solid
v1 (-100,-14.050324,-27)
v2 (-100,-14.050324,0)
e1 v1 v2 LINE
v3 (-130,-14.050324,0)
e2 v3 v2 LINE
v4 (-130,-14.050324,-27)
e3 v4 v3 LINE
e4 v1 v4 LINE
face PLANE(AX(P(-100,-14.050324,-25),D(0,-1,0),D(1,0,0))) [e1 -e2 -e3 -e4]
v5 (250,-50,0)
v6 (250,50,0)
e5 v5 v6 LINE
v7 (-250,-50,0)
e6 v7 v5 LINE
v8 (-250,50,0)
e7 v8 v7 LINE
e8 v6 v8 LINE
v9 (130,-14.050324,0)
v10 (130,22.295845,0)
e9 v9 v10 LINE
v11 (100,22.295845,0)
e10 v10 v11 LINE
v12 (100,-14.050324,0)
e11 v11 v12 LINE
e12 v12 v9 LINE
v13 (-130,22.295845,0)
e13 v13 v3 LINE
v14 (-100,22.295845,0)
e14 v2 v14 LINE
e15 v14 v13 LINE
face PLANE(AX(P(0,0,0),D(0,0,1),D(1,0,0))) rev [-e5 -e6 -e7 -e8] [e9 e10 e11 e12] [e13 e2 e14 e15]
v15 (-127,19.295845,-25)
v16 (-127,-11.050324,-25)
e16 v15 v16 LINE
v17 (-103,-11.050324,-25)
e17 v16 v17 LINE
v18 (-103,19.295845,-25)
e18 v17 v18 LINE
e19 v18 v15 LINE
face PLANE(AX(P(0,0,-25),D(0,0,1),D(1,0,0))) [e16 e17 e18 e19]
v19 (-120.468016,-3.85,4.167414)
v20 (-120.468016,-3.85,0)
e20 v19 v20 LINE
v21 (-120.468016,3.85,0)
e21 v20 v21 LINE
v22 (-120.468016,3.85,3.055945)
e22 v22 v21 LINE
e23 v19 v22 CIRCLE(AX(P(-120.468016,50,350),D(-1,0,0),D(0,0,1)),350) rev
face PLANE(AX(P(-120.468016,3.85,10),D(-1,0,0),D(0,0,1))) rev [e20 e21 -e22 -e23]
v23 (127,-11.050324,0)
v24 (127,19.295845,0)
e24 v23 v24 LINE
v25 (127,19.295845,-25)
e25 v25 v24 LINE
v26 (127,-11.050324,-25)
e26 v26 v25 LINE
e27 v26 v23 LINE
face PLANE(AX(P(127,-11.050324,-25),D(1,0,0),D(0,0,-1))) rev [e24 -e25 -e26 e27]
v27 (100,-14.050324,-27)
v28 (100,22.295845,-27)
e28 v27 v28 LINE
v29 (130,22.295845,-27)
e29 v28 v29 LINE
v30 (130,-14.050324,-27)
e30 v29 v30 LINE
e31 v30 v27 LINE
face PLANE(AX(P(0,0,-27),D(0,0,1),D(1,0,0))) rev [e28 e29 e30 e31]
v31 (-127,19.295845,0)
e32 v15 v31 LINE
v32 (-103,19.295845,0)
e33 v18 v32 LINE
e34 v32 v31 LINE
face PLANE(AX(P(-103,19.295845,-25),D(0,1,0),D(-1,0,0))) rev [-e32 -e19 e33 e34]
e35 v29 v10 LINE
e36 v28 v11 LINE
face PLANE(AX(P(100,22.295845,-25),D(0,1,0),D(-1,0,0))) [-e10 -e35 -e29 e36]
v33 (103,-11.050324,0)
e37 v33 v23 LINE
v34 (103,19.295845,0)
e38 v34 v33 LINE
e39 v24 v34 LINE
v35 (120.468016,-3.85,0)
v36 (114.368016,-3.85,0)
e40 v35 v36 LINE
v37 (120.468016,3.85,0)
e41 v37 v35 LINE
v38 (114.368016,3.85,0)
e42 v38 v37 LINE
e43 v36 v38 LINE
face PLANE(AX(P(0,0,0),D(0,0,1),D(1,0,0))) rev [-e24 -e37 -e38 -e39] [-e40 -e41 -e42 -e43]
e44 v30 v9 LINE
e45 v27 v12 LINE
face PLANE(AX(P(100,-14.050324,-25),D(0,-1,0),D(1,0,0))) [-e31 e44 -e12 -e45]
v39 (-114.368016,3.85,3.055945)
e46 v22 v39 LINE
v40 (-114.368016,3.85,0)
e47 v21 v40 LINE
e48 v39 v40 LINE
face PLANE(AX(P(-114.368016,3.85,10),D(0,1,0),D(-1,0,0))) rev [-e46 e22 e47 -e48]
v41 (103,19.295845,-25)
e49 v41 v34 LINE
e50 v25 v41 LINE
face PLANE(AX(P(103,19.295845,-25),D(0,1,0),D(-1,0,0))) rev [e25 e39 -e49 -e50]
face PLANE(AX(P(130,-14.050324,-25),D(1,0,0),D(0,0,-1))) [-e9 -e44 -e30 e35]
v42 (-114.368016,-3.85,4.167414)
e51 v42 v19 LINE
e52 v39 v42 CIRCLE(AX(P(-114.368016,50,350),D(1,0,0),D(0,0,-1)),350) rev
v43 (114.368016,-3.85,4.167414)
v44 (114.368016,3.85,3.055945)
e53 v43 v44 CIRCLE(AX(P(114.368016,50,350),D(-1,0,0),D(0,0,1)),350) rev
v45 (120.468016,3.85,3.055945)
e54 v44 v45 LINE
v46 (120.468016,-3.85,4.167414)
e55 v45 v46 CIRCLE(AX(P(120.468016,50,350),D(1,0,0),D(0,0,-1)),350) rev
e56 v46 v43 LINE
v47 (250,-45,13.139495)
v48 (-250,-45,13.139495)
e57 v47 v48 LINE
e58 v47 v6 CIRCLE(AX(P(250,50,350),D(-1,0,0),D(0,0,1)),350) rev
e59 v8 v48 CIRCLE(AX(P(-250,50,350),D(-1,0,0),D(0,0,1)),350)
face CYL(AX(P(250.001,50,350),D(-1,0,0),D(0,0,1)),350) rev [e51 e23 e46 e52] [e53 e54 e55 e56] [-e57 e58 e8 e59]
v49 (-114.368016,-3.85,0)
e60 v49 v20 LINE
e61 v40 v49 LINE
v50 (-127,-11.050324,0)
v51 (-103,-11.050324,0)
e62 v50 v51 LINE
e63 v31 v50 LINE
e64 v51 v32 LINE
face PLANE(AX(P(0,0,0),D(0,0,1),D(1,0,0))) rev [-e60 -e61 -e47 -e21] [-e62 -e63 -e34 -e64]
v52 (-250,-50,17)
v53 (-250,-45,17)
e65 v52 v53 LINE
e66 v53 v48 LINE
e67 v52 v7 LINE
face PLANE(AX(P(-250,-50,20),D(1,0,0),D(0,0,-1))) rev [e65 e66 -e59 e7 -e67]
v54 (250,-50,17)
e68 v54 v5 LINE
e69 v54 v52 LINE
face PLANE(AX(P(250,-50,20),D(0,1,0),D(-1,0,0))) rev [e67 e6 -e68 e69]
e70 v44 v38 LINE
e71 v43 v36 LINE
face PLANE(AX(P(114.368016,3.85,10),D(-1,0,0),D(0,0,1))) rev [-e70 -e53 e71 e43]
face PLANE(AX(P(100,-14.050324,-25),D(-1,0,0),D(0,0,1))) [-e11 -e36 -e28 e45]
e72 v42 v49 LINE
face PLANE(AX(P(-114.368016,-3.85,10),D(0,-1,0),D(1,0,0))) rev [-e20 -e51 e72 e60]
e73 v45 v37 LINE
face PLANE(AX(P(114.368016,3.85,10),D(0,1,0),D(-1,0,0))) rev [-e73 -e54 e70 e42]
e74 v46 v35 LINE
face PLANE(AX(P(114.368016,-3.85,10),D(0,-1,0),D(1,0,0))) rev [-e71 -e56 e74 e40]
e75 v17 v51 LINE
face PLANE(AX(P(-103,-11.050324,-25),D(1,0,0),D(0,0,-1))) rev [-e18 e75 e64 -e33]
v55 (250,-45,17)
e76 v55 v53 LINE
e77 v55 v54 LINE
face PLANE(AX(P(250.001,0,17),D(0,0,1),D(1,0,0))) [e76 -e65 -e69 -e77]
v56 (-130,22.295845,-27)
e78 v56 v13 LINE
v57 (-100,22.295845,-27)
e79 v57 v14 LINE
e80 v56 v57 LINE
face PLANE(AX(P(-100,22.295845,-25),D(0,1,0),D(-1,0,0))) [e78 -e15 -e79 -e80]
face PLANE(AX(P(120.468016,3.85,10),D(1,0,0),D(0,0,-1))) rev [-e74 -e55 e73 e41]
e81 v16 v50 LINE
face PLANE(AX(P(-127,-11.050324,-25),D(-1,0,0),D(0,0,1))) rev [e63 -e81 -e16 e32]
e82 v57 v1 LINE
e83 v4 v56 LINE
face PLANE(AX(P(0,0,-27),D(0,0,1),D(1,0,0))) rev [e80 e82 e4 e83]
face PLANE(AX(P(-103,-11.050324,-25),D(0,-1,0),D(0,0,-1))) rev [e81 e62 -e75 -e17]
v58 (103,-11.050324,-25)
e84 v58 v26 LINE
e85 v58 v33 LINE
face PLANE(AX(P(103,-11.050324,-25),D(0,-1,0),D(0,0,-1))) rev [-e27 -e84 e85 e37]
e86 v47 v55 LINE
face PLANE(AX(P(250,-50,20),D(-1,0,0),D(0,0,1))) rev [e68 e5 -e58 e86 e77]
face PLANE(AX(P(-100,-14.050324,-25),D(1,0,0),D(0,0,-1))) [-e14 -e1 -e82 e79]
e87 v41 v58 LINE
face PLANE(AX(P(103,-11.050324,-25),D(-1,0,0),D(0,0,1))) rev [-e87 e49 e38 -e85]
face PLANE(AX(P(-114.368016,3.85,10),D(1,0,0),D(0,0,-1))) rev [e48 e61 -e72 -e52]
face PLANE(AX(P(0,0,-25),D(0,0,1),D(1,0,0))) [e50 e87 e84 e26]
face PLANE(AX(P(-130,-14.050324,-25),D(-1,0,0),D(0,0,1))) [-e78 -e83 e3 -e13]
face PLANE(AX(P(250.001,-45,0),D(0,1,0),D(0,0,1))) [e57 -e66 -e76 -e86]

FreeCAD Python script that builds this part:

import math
import FreeCAD as App
import Part
import Sketcher
Q = App.Units.Quantity


def add_polygon(sketch, points):
    """Adds a closed chain of lines whose ends are joined by coincident constraints."""
    first, n = sketch.GeometryCount, len(points)
    for a, b in zip(points, points[1:] + points[:1]):
        sketch.addGeometry(Part.LineSegment(App.Vector(*a, 0), App.Vector(*b, 0)), False)
    for i in range(n):
        sketch.addConstraint(Sketcher.Constraint("Coincident", first + i, 2, first + (i + 1) % n, 1))

doc = App.newDocument("Part")
params = doc.addObject("Spreadsheet::Sheet", "Params")
for row, (alias, value) in enumerate([
    ("sketch1_width", "500 mm"),
    ("sketch1_height", "100 mm"),
    ("pad1_length", "20 mm"),
    ("sketch2_radius", "350 mm"),
    ("sketch2_width", "5 mm"),
    ("sketch2_width2", "100 mm"),
    ("sketch2_height", "3 mm"),
    ("sketch2_height2", "20 mm"),
    ("sketch3_width", "6.1 mm"),
    ("sketch3_height", "7.7 mm"),
    ("pocket2_length", "10 mm"),
    ("sketch4_width", "30 mm"),
    ("sketch4_width2", "24 mm"),
    ("pad2_length", "25 mm"),
    ("sketch5_width", "30 mm"),
    ("pad3_length", "2 mm"),
    ("sketch6_width", "30 mm"),
    ("pad4_length", "2 mm"),
], start=1):
    params.set(f"A{row}", alias)
    params.set(f"B{row}", "=" + value)
    params.setAlias(f"B{row}", alias)

body = doc.addObject("PartDesign::Body", "Body")

# Sketch on XY plane
sketch1 = body.newObject("Sketcher::SketchObject", "Sketch")
sketch1.AttachmentSupport = (doc.getObject("XY_Plane"), [""])
sketch1.MapMode = "FlatFace"
add_polygon(sketch1, [(-250, 50), (-250, -50), (250, -50), (250, 50)])  # lines 0-3
sketch1.addConstraint([
    Sketcher.Constraint("Vertical", 0),
    Sketcher.Constraint("Horizontal", 1),
    Sketcher.Constraint("Vertical", 2),
    Sketcher.Constraint("Horizontal", 3),
    Sketcher.Constraint("Symmetric", 0, 2, 2, 2, -1, 1),
    Sketcher.Constraint("DistanceX", 1, 1, 1, 2, Q("500 mm")),
    Sketcher.Constraint("DistanceY", 0, 2, 0, 1, Q("100 mm")),
])
sketch1.setExpression("Constraints[9]", "Params.sketch1_width")
sketch1.setExpression("Constraints[10]", "Params.sketch1_height")
pad1 = body.newObject("PartDesign::Pad", "Pad")
pad1.Profile = sketch1
pad1.setExpression("Length", "Params.pad1_length")

# Sketch on YZ plane
sketch2 = body.newObject("Sketcher::SketchObject", "Sketch001")
sketch2.AttachmentSupport = (doc.getObject("YZ_Plane"), [""])
sketch2.MapMode = "FlatFace"
sketch2.AttachmentOffset = App.Placement(App.Vector(0, 0, -250), App.Rotation())
sketch2.addGeometry([
    Part.LineSegment(App.Vector(-45, 17, 0), App.Vector(-50, 17, 0)),  # 0
    Part.LineSegment(App.Vector(-50, 17, 0), App.Vector(-50, 20, 0)),  # 1
    Part.LineSegment(App.Vector(-50, 20, 0), App.Vector(50, 20, 0)),  # 2
    Part.LineSegment(App.Vector(50, 20, 0), App.Vector(50, 0, 0)),  # 3
    Part.ArcOfCircle(Part.Circle(App.Vector(50, 350, 0), App.Vector(0, 0, 1), 350), math.radians(-105.749293), math.radians(-90)),  # 4
    Part.LineSegment(App.Vector(-45, 13.139495, 0), App.Vector(-45, 17, 0)),  # 5
], False)
sketch2.addConstraint([
    Sketcher.Constraint("Coincident", 0, 2, 1, 1),
    Sketcher.Constraint("Coincident", 1, 2, 2, 1),
    Sketcher.Constraint("Coincident", 2, 2, 3, 1),
    Sketcher.Constraint("Coincident", 3, 2, 4, 2),
    Sketcher.Constraint("Coincident", 4, 1, 5, 1),
    Sketcher.Constraint("Coincident", 5, 2, 0, 1),
    Sketcher.Constraint("Horizontal", 0),
    Sketcher.Constraint("Vertical", 1),
    Sketcher.Constraint("Horizontal", 2),
    Sketcher.Constraint("Vertical", 3),
    Sketcher.Constraint("Vertical", 5),
    Sketcher.Constraint("PointOnObject", 3, 2, -1),
    Sketcher.Constraint("Vertical", 4, 3, 2, 2),
    Sketcher.Constraint("Radius", 4, Q("350 mm")),
    Sketcher.Constraint("DistanceX", 0, 2, 0, 1, Q("5 mm")),
    Sketcher.Constraint("DistanceX", 2, 1, 2, 2, Q("100 mm")),
    Sketcher.Constraint("DistanceY", 1, 1, 1, 2, Q("3 mm")),
    Sketcher.Constraint("DistanceY", 3, 2, 3, 1, Q("20 mm")),
    Sketcher.Constraint("DistanceX", -1, 1, 4, 3, Q("50 mm")),
])
sketch2.setExpression("Constraints[13]", "Params.sketch2_radius")
sketch2.setExpression("Constraints[14]", "Params.sketch2_width")
sketch2.setExpression("Constraints[15]", "Params.sketch2_width2")
sketch2.setExpression("Constraints[16]", "Params.sketch2_height")
sketch2.setExpression("Constraints[17]", "Params.sketch2_height2")
pocket1 = body.newObject("PartDesign::Pocket", "Pocket")
pocket1.Profile = sketch2
pocket1.Type = "UpToFirst"
pocket1.Reversed = True

# Sketch on XY plane
sketch3 = body.newObject("Sketcher::SketchObject", "Sketch002")
sketch3.AttachmentSupport = (doc.getObject("XY_Plane"), [""])
sketch3.MapMode = "FlatFace"
add_polygon(sketch3, [(120.468016, 3.85), (120.468016, -3.85), (114.368016, -3.85), (114.368016, 3.85)])  # lines 0-3
add_polygon(sketch3, [(-114.368016, 3.85), (-114.368016, -3.85), (-120.468016, -3.85), (-120.468016, 3.85)])  # lines 4-7
sketch3.addConstraint([
    Sketcher.Constraint("Vertical", 0),
    Sketcher.Constraint("Horizontal", 1),
    Sketcher.Constraint("Vertical", 2),
    Sketcher.Constraint("Horizontal", 3),
    Sketcher.Constraint("Vertical", 4),
    Sketcher.Constraint("Horizontal", 5),
    Sketcher.Constraint("Vertical", 6),
    Sketcher.Constraint("Horizontal", 7),
    Sketcher.Constraint("Symmetric", 2, 2, 4, 2, -1, 1),
    Sketcher.Constraint("Symmetric", 0, 2, 6, 2, -1, 1),
    Sketcher.Constraint("Horizontal", 1, 2, 4, 2),
    Sketcher.Constraint("DistanceX", 1, 2, 1, 1, Q("6.1 mm")),
    Sketcher.Constraint("DistanceY", 0, 2, 0, 1, Q("7.7 mm")),
    Sketcher.Constraint("DistanceX", -1, 1, 0, 2, Q("120.468016 mm")),
])
sketch3.setExpression("Constraints[19]", "Params.sketch3_width")
sketch3.setExpression("Constraints[20]", "Params.sketch3_height")
pocket2 = body.newObject("PartDesign::Pocket", "Pocket001")
pocket2.Profile = sketch3
pocket2.setExpression("Length", "Params.pocket2_length")
pocket2.Reversed = True

# Sketch on XY plane
sketch4 = body.newObject("Sketcher::SketchObject", "Sketch003")
sketch4.AttachmentSupport = (doc.getObject("XY_Plane"), [""])
sketch4.MapMode = "FlatFace"
add_polygon(sketch4, [(-130, 22.295845), (-130, -14.050324), (-100, -14.050324), (-100, 22.295845)])  # lines 0-3
add_polygon(sketch4, [(-103, -11.050324), (-127, -11.050324), (-127, 19.295845), (-103, 19.295845)])  # lines 4-7
add_polygon(sketch4, [(100, 22.295845), (100, -14.050324), (130, -14.050324), (130, 22.295845)])  # lines 8-11
add_polygon(sketch4, [(127, -11.050324), (103, -11.050324), (103, 19.295845), (127, 19.295845)])  # lines 12-15
sketch4.addConstraint([
    Sketcher.Constraint("Vertical", 0),
    Sketcher.Constraint("Horizontal", 1),
    Sketcher.Constraint("Vertical", 2),
    Sketcher.Constraint("Horizontal", 3),
    Sketcher.Constraint("Horizontal", 4),
    Sketcher.Constraint("Vertical", 5),
    Sketcher.Constraint("Horizontal", 6),
    Sketcher.Constraint("Vertical", 7),
    Sketcher.Constraint("Vertical", 8),
    Sketcher.Constraint("Horizontal", 9),
    Sketcher.Constraint("Vertical", 10),
    Sketcher.Constraint("Horizontal", 11),
    Sketcher.Constraint("Horizontal", 12),
    Sketcher.Constraint("Vertical", 13),
    Sketcher.Constraint("Horizontal", 14),
    Sketcher.Constraint("Vertical", 15),
    Sketcher.Constraint("Symmetric", 1, 2, 8, 2, -2),
    Sketcher.Constraint("Symmetric", 3, 2, 10, 2, -2),
    Sketcher.Constraint("Symmetric", 7, 2, 12, 2, -2),
    Sketcher.Constraint("Symmetric", 5, 2, 14, 2, -2),
    Sketcher.Constraint("DistanceX", 1, 1, 1, 2, Q("30 mm")),
    Sketcher.Constraint("DistanceX", 4, 2, 4, 1, Q("24 mm")),
    Sketcher.Constraint("DistanceX", 0, 2, -1, 1, Q("130 mm")),
    Sketcher.Constraint("DistanceX", 4, 2, -1, 1, Q("127 mm")),
    Sketcher.Constraint("DistanceY", 0, 2, 4, 2, Q("3 mm")),
    Sketcher.Constraint("DistanceY", 5, 2, 3, 2, Q("3 mm")),
    Sketcher.Constraint("DistanceY", 0, 2, 0, 1, Q("36.346169 mm")),
    Sketcher.Constraint("DistanceY", 0, 2, -1, 1, Q("14.050324 mm")),
])
sketch4.setExpression("Constraints[36]", "Params.sketch4_width")
sketch4.setExpression("Constraints[37]", "Params.sketch4_width2")
pad2 = body.newObject("PartDesign::Pad", "Pad001")
pad2.Profile = sketch4
pad2.setExpression("Length", "Params.pad2_length")
pad2.Reversed = True

# Sketch on XY plane
sketch5 = body.newObject("Sketcher::SketchObject", "Sketch004")
sketch5.AttachmentSupport = (doc.getObject("XY_Plane"), [""])
sketch5.MapMode = "FlatFace"
sketch5.AttachmentOffset = App.Placement(App.Vector(0, 0, -25), App.Rotation())
add_polygon(sketch5, [(130, 22.295845), (130, -14.050324), (100, -14.050324), (100, 22.295845)])  # lines 0-3
sketch5.addConstraint([
    Sketcher.Constraint("Vertical", 0),
    Sketcher.Constraint("Horizontal", 1),
    Sketcher.Constraint("Vertical", 2),
    Sketcher.Constraint("Horizontal", 3),
    Sketcher.Constraint("DistanceX", 1, 2, 1, 1, Q("30 mm")),
    Sketcher.Constraint("DistanceX", -1, 1, 0, 2, Q("130 mm")),
    Sketcher.Constraint("DistanceY", 0, 2, 0, 1, Q("36.346169 mm")),
    Sketcher.Constraint("DistanceY", 0, 2, -1, 1, Q("14.050324 mm")),
])
sketch5.setExpression("Constraints[8]", "Params.sketch5_width")
pad3 = body.newObject("PartDesign::Pad", "Pad002")
pad3.Profile = sketch5
pad3.setExpression("Length", "Params.pad3_length")
pad3.Reversed = True

# Sketch on XY plane
sketch6 = body.newObject("Sketcher::SketchObject", "Sketch005")
sketch6.AttachmentSupport = (doc.getObject("XY_Plane"), [""])
sketch6.MapMode = "FlatFace"
sketch6.AttachmentOffset = App.Placement(App.Vector(0, 0, -25), App.Rotation())
add_polygon(sketch6, [(-100, 22.295845), (-100, -14.050324), (-130, -14.050324), (-130, 22.295845)])  # lines 0-3
sketch6.addConstraint([
    Sketcher.Constraint("Vertical", 0),
    Sketcher.Constraint("Horizontal", 1),
    Sketcher.Constraint("Vertical", 2),
    Sketcher.Constraint("Horizontal", 3),
    Sketcher.Constraint("DistanceX", 1, 2, 1, 1, Q("30 mm")),
    Sketcher.Constraint("DistanceX", 0, 2, -1, 1, Q("100 mm")),
    Sketcher.Constraint("DistanceY", 0, 2, 0, 1, Q("36.346169 mm")),
    Sketcher.Constraint("DistanceY", 0, 2, -1, 1, Q("14.050324 mm")),
])
sketch6.setExpression("Constraints[8]", "Params.sketch6_width")
pad4 = body.newObject("PartDesign::Pad", "Pad003")
pad4.Profile = sketch6
pad4.setExpression("Length", "Params.pad4_length")
pad4.Reversed = True

doc.recompute()
